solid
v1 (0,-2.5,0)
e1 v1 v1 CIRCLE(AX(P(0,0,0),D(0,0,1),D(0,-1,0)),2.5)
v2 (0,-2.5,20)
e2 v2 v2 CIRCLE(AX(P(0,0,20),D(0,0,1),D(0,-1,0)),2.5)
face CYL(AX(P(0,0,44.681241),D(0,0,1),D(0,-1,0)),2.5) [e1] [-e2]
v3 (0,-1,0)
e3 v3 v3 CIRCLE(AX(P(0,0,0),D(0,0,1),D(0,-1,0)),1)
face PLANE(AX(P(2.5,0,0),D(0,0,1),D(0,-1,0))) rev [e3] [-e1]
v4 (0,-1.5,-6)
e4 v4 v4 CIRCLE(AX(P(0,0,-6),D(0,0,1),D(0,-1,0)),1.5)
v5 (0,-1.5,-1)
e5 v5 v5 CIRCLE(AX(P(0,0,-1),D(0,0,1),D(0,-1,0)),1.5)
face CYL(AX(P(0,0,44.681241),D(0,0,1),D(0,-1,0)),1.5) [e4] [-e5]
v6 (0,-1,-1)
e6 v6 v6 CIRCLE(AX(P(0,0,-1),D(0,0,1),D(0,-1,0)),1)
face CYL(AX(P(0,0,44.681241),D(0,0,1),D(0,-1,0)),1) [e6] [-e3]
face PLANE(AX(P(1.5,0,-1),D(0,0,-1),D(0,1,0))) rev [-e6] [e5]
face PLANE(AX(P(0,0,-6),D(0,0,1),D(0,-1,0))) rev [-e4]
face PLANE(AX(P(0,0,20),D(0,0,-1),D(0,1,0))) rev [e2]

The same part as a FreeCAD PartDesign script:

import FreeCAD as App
import Part
import Sketcher

V = App.Vector

doc = App.newDocument("Part")
body = doc.addObject("PartDesign::Body", "Body")

sketch1 = body.newObject("Sketcher::SketchObject", "Sketch")
sketch1.AttachmentSupport = (doc.getObject("XZ_Plane"), [""])
sketch1.MapMode = "FlatFace"
sketch1.addGeometry([
    Part.LineSegment(V(2.5, 20, 0), V(0, 20, 0)),
    Part.LineSegment(V(0, 20, 0), V(0, -6, 0)),
    Part.LineSegment(V(0, -6, 0), V(1.5, -6, 0)),
    Part.LineSegment(V(1.5, -6, 0), V(1.5, -1, 0)),
    Part.LineSegment(V(1.5, -1, 0), V(1, -1, 0)),
    Part.LineSegment(V(1, -1, 0), V(1, 0, 0)),
    Part.LineSegment(V(1, 0, 0), V(2.5, 0, 0)),
    Part.LineSegment(V(2.5, 0, 0), V(2.5, 20, 0)),
], False)
sketch1.addConstraint([
    Sketcher.Constraint("Coincident", 0, 2, 1, 1),
    Sketcher.Constraint("Coincident", 1, 2, 2, 1),
    Sketcher.Constraint("Coincident", 2, 2, 3, 1),
    Sketcher.Constraint("Coincident", 3, 2, 4, 1),
    Sketcher.Constraint("Coincident", 4, 2, 5, 1),
    Sketcher.Constraint("Coincident", 5, 2, 6, 1),
    Sketcher.Constraint("Coincident", 6, 2, 7, 1),
    Sketcher.Constraint("Coincident", 7, 2, 0, 1),
    Sketcher.Constraint("Horizontal", 0),
    Sketcher.Constraint("Vertical", 1),
    Sketcher.Constraint("Horizontal", 2),
    Sketcher.Constraint("Vertical", 3),
    Sketcher.Constraint("Horizontal", 4),
    Sketcher.Constraint("Vertical", 5),
    Sketcher.Constraint("Horizontal", 6),
    Sketcher.Constraint("Vertical", 7),
    Sketcher.Constraint("PointOnObject", 0, 2, -2),
    Sketcher.Constraint("PointOnObject", 5, 2, -1),
    Sketcher.Constraint("Equal", 2, 6),
    Sketcher.Constraint("DistanceY", 1, 2, 1, 1, 26.0),
    Sketcher.Constraint("DistanceY", 3, 1, 3, 2, 5.0),
    Sketcher.Constraint("DistanceY", 5, 1, 5, 2, 1.0),
    Sketcher.Constraint("DistanceX", 0, 2, 0, 1, 2.5),
    Sketcher.Constraint("DistanceX", 2, 1, 2, 2, 1.5),
])
revolution = body.newObject("PartDesign::Revolution", "Revolution")
revolution.Profile = sketch1
revolution.ReferenceAxis = (sketch1, ["V_Axis"])
revolution.Angle = 360

doc.recompute()
